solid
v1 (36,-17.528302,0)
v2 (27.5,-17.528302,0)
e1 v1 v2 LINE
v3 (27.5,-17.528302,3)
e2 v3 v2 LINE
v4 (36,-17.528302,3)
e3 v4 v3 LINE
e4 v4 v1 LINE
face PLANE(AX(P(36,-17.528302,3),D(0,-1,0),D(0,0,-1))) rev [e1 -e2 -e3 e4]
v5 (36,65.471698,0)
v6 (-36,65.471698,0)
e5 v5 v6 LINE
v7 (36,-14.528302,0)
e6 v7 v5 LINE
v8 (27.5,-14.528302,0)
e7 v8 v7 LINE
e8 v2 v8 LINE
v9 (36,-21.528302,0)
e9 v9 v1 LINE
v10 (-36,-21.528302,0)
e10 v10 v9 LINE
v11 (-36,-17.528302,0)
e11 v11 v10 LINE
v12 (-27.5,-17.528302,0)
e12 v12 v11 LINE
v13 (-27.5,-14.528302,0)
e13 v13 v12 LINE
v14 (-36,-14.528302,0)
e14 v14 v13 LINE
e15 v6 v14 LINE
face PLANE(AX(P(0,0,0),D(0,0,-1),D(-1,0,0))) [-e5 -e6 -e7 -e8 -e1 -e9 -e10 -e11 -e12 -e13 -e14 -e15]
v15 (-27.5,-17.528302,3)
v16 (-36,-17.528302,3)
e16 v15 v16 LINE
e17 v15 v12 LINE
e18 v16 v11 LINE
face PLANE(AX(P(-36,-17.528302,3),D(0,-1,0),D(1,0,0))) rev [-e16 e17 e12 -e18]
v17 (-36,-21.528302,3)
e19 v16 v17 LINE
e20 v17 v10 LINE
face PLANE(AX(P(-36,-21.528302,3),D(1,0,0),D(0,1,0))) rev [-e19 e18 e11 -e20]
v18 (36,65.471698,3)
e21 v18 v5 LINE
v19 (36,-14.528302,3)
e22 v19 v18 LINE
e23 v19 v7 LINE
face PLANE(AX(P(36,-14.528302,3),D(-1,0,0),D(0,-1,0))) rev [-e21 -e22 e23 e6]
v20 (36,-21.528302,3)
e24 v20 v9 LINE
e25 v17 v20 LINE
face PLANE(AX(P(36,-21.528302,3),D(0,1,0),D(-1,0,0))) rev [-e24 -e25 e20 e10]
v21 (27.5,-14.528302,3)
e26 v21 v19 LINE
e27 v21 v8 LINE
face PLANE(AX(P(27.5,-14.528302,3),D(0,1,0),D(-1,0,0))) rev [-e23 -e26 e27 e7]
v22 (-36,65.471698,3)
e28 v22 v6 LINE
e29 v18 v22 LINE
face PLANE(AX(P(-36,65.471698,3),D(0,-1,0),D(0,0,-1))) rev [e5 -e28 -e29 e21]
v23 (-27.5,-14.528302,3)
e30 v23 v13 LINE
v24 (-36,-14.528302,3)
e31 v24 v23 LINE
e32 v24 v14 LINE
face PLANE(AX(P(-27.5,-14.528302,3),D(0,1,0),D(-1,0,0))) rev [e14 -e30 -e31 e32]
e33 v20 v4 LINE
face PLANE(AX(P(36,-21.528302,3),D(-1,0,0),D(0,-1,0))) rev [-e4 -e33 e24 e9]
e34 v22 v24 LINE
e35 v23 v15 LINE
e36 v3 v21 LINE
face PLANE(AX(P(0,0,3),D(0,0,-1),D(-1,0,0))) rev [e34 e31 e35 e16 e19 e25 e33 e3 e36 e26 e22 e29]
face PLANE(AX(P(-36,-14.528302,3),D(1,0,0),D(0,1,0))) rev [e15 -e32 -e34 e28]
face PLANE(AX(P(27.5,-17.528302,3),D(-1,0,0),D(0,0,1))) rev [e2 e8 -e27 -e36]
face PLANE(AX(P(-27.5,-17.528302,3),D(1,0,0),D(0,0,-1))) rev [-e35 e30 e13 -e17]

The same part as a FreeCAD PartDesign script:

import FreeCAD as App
import Part
import Sketcher
from FreeCAD import Vector


def add_polygon(sketch, points):
    """Adds a closed chain of lines whose ends are joined by coincident constraints."""
    first, n = sketch.GeometryCount, len(points)
    for a, b in zip(points, points[1:] + points[:1]):
        sketch.addGeometry(Part.LineSegment(App.Vector(*a, 0), App.Vector(*b, 0)), False)
    for i in range(n):
        sketch.addConstraint(Sketcher.Constraint("Coincident", first + i, 2, first + (i + 1) % n, 1))

doc = App.newDocument("Part")
body = doc.addObject("PartDesign::Body", "Body")

# Sketch on XY plane
sketch1 = doc.addObject("Sketcher::SketchObject", "Sketch")
body.addObject(sketch1)
sketch1.AttachmentSupport = (doc.XY_Plane, [""])
sketch1.MapMode = "FlatFace"
add_polygon(sketch1, [(-36, -21.5), (36, -21.5), (36, -17.5), (27.5, -17.5), (27.5, -14.5), (36, -14.5), (36, 65.5), (-36, 65.5), (-36, -14.5), (-27.5, -14.5), (-27.5, -17.5), (-36, -17.5)])  # lines 0-11
sketch1.addConstraint([
    Sketcher.Constraint("Horizontal", 0),
    Sketcher.Constraint("Vertical", 1),
    Sketcher.Constraint("Horizontal", 2),
    Sketcher.Constraint("Vertical", 3),
    Sketcher.Constraint("Horizontal", 4),
    Sketcher.Constraint("Vertical", 5),
    Sketcher.Constraint("Horizontal", 6),
    Sketcher.Constraint("Vertical", 7),
    Sketcher.Constraint("Horizontal", 8),
    Sketcher.Constraint("Vertical", 9),
    Sketcher.Constraint("Horizontal", 10),
    Sketcher.Constraint("Vertical", 11),
    Sketcher.Constraint("Symmetric", 4, 2, 7, 2, -2),
    Sketcher.Constraint("Symmetric", 2, 2, 9, 2, -2),
    Sketcher.Constraint("Vertical", 1, 2, 4, 2),
    Sketcher.Constraint("Vertical", 7, 2, 10, 2),
    Sketcher.Constraint("DistanceX", 0, 1, 0, 2, 72.0),
    Sketcher.Constraint("DistanceY", 1, 1, 1, 2, 4.0),
    Sketcher.Constraint("DistanceY", 3, 1, 3, 2, 3.0),
    Sketcher.Constraint("DistanceY", 5, 1, 5, 2, 80.0),
    Sketcher.Constraint("DistanceX", 2, 2, 2, 1, 8.5),
    Sketcher.Constraint("DistanceY", 0, 2, -1, 1, 21.528302),
])
pad1 = doc.addObject("PartDesign::Pad", "Pad")
body.addObject(pad1)
pad1.Profile = sketch1
pad1.Length = 3

doc.recompute()
